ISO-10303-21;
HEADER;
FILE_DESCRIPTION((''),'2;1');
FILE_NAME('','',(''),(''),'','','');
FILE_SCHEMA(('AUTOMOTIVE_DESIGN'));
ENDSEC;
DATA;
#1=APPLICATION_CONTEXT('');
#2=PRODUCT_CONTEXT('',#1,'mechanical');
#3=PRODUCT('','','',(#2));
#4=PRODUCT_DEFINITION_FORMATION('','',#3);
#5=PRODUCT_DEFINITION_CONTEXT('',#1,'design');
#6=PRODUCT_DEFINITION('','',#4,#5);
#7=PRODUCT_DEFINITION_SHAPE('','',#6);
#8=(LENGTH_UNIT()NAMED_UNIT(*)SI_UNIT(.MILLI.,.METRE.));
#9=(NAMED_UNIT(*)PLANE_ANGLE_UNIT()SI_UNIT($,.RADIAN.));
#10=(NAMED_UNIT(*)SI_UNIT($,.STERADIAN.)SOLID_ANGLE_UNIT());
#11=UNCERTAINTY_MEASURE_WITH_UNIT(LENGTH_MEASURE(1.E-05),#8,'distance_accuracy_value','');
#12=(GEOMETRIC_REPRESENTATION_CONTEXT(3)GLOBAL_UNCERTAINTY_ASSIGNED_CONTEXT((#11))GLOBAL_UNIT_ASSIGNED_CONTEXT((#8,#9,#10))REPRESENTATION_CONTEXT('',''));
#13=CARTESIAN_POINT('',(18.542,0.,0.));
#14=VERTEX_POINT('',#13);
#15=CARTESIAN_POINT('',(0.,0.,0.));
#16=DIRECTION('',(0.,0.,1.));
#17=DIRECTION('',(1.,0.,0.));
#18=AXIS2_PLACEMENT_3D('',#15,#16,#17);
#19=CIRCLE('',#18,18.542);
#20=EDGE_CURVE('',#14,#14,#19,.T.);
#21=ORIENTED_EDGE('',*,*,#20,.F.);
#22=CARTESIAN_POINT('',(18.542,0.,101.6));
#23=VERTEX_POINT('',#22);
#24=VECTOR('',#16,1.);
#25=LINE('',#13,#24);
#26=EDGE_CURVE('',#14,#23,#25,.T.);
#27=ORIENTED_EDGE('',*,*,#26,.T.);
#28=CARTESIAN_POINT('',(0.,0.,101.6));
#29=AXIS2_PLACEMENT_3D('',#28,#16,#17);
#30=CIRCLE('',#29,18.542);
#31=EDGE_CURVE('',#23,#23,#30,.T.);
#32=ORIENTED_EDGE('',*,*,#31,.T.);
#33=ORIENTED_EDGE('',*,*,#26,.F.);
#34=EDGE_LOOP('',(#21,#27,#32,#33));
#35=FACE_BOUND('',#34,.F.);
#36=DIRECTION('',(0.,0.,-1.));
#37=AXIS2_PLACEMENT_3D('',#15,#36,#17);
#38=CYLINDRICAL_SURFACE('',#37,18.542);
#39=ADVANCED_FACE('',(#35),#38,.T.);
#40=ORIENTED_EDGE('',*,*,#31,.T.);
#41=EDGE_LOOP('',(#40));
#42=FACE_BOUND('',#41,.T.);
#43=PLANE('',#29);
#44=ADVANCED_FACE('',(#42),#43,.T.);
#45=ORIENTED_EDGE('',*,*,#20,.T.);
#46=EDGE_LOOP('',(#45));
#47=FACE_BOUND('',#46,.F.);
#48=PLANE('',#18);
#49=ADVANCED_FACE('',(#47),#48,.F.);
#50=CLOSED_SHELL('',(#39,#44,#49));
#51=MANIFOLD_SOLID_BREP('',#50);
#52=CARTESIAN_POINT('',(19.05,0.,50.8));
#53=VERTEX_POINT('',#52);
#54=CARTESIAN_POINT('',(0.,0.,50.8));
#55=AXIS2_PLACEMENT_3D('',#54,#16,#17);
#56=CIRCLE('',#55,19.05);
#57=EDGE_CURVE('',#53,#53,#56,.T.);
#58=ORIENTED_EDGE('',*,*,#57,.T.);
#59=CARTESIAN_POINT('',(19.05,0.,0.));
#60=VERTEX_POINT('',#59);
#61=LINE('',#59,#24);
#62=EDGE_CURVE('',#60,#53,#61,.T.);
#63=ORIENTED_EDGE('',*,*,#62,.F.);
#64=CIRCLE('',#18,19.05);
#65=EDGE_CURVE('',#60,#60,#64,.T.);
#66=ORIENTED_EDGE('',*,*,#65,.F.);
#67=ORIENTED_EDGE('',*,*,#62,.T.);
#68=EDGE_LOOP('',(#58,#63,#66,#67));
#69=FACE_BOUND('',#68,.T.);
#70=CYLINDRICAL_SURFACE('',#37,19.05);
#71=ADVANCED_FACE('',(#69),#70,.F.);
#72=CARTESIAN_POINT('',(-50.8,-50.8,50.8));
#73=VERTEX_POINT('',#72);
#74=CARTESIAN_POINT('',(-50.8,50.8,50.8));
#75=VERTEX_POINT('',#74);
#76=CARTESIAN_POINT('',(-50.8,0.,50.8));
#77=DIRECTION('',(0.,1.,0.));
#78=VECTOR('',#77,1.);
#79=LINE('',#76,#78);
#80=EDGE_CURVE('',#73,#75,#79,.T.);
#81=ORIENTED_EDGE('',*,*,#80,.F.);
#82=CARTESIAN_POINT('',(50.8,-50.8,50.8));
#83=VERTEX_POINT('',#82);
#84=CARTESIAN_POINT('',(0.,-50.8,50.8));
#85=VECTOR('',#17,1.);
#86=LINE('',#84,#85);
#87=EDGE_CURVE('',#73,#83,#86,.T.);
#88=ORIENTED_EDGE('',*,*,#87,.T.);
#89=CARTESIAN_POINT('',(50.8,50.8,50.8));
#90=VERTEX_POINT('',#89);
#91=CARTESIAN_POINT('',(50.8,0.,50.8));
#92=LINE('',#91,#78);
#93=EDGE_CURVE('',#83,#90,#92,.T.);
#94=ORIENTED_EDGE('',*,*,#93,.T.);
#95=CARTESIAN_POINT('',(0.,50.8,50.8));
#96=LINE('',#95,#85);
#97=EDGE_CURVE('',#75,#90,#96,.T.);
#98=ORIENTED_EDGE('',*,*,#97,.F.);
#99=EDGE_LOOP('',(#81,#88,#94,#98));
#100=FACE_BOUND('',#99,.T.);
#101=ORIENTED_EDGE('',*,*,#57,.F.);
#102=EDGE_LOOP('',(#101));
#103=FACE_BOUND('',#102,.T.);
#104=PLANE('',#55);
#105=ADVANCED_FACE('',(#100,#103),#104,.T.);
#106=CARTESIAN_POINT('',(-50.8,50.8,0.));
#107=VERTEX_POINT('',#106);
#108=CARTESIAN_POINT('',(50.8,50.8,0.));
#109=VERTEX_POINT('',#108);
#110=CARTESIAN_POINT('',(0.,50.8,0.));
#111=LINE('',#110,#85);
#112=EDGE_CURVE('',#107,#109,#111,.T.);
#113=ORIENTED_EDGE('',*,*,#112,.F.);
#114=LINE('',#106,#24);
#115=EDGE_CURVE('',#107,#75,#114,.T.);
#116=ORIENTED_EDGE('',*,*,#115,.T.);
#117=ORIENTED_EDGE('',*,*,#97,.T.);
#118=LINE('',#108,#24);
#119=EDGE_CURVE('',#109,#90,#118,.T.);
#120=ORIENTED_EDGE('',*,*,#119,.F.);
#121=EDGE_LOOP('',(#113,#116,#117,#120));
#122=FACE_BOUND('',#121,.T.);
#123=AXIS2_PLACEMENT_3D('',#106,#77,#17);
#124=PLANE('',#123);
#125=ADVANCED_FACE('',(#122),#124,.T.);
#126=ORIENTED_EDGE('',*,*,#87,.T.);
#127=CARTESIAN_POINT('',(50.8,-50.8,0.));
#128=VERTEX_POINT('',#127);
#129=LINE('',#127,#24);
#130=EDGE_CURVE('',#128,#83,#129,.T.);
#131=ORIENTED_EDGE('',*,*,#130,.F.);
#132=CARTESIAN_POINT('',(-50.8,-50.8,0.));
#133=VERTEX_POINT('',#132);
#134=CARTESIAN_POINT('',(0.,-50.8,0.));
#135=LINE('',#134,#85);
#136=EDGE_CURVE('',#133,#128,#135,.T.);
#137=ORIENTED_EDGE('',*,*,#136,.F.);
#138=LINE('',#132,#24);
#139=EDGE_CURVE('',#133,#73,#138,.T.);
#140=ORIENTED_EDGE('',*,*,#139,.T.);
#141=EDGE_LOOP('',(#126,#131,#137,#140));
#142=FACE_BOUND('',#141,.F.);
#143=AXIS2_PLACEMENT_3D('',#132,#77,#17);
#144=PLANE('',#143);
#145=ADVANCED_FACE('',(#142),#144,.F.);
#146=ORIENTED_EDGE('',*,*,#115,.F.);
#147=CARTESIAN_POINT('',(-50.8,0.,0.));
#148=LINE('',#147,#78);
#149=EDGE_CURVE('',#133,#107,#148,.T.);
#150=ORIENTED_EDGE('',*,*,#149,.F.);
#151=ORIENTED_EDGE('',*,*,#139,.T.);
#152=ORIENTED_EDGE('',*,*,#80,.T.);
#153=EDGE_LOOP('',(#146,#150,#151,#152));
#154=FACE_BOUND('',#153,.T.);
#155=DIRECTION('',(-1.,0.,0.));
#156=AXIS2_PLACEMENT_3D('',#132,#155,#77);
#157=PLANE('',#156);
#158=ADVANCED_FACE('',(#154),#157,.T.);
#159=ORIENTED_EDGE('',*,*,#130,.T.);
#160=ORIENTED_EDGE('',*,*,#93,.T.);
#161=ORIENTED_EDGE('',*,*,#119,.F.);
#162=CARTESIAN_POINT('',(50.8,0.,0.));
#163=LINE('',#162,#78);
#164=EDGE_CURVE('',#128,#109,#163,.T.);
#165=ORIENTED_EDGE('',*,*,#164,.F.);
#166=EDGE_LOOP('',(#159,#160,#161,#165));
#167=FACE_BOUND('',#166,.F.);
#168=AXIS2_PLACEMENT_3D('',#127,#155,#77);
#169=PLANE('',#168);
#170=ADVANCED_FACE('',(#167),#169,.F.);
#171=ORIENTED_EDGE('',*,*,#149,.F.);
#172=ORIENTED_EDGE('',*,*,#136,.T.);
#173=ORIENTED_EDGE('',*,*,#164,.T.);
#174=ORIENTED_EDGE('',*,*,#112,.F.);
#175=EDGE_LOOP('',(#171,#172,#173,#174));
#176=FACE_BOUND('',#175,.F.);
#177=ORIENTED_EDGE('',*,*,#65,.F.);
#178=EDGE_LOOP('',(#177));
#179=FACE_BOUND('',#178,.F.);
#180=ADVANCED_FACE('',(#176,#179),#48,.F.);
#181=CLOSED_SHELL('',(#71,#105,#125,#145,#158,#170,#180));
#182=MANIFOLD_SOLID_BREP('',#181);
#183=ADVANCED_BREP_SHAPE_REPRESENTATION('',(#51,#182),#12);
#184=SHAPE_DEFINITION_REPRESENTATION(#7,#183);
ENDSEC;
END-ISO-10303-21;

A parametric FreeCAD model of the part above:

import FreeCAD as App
import Part
import Sketcher

V = App.Vector
Q = App.Units.Quantity

doc = App.newDocument("Part")
params = doc.addObject("Spreadsheet::Sheet", "Params")
for row, (alias, value) in enumerate([
    ("sketch1_diameter", "1.5 in"),
    ("sketch1_width", "4 in"),
    ("pad1_length", "2 in"),
    ("sketch2_diameter", "1.46 in"),
    ("pad2_length", "4 in"),
], start=1):
    params.set(f"A{row}", alias)
    params.set(f"B{row}", "=" + value)
    params.setAlias(f"B{row}", alias)

body = doc.addObject("PartDesign::Body", "Body")

# Sketch on XY plane
sketch1 = body.newObject("Sketcher::SketchObject", "Sketch")
sketch1.AttachmentSupport = (doc.getObject("XY_Plane"), [""])
sketch1.MapMode = "FlatFace"
sketch1.addGeometry(Part.LineSegment(V(-51, 51, 0), V(-51, -51, 0)), False)
sketch1.addGeometry(Part.LineSegment(V(-51, -51, 0), V(51, -51, 0)), False)
sketch1.addGeometry(Part.LineSegment(V(51, -51, 0), V(51, 51, 0)), False)
sketch1.addGeometry(Part.LineSegment(V(51, 51, 0), V(-51, 51, 0)), False)
sketch1.addGeometry(Part.Circle(V(0, 0, 0), V(0, 0, 1), 19), False)
sketch1.addConstraint(Sketcher.Constraint("Coincident", 0, 2, 1, 1))
sketch1.addConstraint(Sketcher.Constraint("Coincident", 1, 2, 2, 1))
sketch1.addConstraint(Sketcher.Constraint("Coincident", 2, 2, 3, 1))
sketch1.addConstraint(Sketcher.Constraint("Coincident", 3, 2, 0, 1))
sketch1.addConstraint(Sketcher.Constraint("Vertical", 0))
sketch1.addConstraint(Sketcher.Constraint("Horizontal", 1))
sketch1.addConstraint(Sketcher.Constraint("Vertical", 2))
sketch1.addConstraint(Sketcher.Constraint("Horizontal", 3))
sketch1.addConstraint(Sketcher.Constraint("Coincident", 4, 3, -1, 1))
sketch1.addConstraint(Sketcher.Constraint("Symmetric", 0, 2, 2, 2, -1, 1))
sketch1.addConstraint(Sketcher.Constraint("Equal", 3, 0))
sketch1.addConstraint(Sketcher.Constraint("Diameter", 4, Q("1.5 in")))
sketch1.addConstraint(Sketcher.Constraint("DistanceX", 1, 1, 1, 2, Q("4 in")))
sketch1.setExpression("Constraints[11]", "Params.sketch1_diameter")
sketch1.setExpression("Constraints[12]", "Params.sketch1_width")
pad1 = body.newObject("PartDesign::Pad", "Pad")
pad1.Profile = sketch1
pad1.setExpression("Length", "Params.pad1_length")
body2 = doc.addObject("PartDesign::Body", "Body001")

# Sketch on XY plane
sketch2 = body2.newObject("Sketcher::SketchObject", "Sketch001")
sketch2.AttachmentSupport = (doc.getObject("XY_Plane001"), [""])
sketch2.MapMode = "FlatFace"
sketch2.addGeometry(Part.Circle(V(0, 0, 0), V(0, 0, 1), 19), False)
sketch2.addConstraint(Sketcher.Constraint("Coincident", 0, 3, -1, 1))
sketch2.addConstraint(Sketcher.Constraint("Diameter", 0, Q("1.46 in")))
sketch2.setExpression("Constraints[1]", "Params.sketch2_diameter")
pad2 = body2.newObject("PartDesign::Pad", "Pad001")
pad2.Profile = sketch2
pad2.setExpression("Length", "Params.pad2_length")

doc.recompute()
